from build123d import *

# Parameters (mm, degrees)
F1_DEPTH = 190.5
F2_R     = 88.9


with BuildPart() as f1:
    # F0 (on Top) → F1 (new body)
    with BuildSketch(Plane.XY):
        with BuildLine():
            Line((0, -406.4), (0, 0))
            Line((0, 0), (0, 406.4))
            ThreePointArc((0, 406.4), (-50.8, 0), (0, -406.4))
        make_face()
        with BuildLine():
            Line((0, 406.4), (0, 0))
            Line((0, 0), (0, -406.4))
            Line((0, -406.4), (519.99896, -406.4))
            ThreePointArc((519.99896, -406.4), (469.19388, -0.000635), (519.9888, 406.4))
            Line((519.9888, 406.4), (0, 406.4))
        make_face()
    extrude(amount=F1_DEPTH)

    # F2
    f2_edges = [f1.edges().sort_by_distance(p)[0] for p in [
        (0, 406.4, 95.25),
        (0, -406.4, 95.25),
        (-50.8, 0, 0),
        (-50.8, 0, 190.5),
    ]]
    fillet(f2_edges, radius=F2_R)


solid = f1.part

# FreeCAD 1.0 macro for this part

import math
import FreeCAD as App
import Part
import Sketcher
Q = App.Units.Quantity


def edges_at(feature, points):
    """Names of the edges that pass closest to the given points."""
    edges = feature.Shape.Edges
    near = lambda p: min(range(len(edges)), key=lambda i: edges[i].distToShape(Part.Vertex(*p))[0])
    return sorted({f"Edge{near(p) + 1}" for p in points})

doc = App.newDocument("Part")
body = doc.addObject("PartDesign::Body", "Body")

sketch1 = doc.addObject("Sketcher::SketchObject", "Sketch")
body.addObject(sketch1)
sketch1.AttachmentSupport = (doc.XY_Plane, [""])
sketch1.MapMode = "FlatFace"
sketch1.addGeometry(Part.ArcOfCircle(Part.Circle(App.Vector(1600, 0, 0), App.Vector(0, 0, 1), 1651), math.radians(166), math.radians(194)), False)
sketch1.addGeometry(Part.LineSegment(App.Vector(0, -406, 0), App.Vector(520, -406, 0)), False)
sketch1.addGeometry(Part.ArcOfCircle(Part.Circle(App.Vector(2120, 0, 0), App.Vector(0, 0, 1), 1651), math.radians(166), math.radians(194)), False)
sketch1.addGeometry(Part.LineSegment(App.Vector(520, 406, 0), App.Vector(0, 406, 0)), False)
sketch1.addConstraint(Sketcher.Constraint("Coincident", 0, 2, 1, 1))
sketch1.addConstraint(Sketcher.Constraint("Coincident", 1, 2, 2, 2))
sketch1.addConstraint(Sketcher.Constraint("Coincident", 2, 1, 3, 1))
sketch1.addConstraint(Sketcher.Constraint("Coincident", 3, 2, 0, 1))
sketch1.addConstraint(Sketcher.Constraint("Horizontal", 1))
sketch1.addConstraint(Sketcher.Constraint("Horizontal", 3))
sketch1.addConstraint(Sketcher.Constraint("Equal", 0, 2))
sketch1.addConstraint(Sketcher.Constraint("PointOnObject", 0, 3, -1))
sketch1.addConstraint(Sketcher.Constraint("PointOnObject", 3, 2, -2))
sketch1.addConstraint(Sketcher.Constraint("Radius", 0, Q("65 in")))
sketch1.addConstraint(Sketcher.Constraint("DistanceX", -1, 1, 0, 3, Q("63 in")))
sketch1.addConstraint(Sketcher.Constraint("DistanceY", 1, 2, -1, 1, Q("16 in")))
sketch1.addConstraint(Sketcher.Constraint("DistanceX", 3, 2, 3, 1, Q("20.472 in")))
sketch1.addConstraint(Sketcher.Constraint("DistanceX", 1, 1, 1, 2, Q("20.4724 in")))
pad1 = doc.addObject("PartDesign::Pad", "Pad")
body.addObject(pad1)
pad1.Profile = sketch1
pad1.Length = Q("7.5 in")
doc.recompute()

fillet = doc.addObject("PartDesign::Fillet", "Fillet")
body.addObject(fillet)
fillet.Base = (pad1, edges_at(pad1, [
    (0, 406.4, 95.25),
    (0, -406.4, 95.25),
    (-50.8, 0, 0),
    (-50.8, 0, 190.5),
]))
fillet.Radius = Q("3.5 in")

doc.recompute()
